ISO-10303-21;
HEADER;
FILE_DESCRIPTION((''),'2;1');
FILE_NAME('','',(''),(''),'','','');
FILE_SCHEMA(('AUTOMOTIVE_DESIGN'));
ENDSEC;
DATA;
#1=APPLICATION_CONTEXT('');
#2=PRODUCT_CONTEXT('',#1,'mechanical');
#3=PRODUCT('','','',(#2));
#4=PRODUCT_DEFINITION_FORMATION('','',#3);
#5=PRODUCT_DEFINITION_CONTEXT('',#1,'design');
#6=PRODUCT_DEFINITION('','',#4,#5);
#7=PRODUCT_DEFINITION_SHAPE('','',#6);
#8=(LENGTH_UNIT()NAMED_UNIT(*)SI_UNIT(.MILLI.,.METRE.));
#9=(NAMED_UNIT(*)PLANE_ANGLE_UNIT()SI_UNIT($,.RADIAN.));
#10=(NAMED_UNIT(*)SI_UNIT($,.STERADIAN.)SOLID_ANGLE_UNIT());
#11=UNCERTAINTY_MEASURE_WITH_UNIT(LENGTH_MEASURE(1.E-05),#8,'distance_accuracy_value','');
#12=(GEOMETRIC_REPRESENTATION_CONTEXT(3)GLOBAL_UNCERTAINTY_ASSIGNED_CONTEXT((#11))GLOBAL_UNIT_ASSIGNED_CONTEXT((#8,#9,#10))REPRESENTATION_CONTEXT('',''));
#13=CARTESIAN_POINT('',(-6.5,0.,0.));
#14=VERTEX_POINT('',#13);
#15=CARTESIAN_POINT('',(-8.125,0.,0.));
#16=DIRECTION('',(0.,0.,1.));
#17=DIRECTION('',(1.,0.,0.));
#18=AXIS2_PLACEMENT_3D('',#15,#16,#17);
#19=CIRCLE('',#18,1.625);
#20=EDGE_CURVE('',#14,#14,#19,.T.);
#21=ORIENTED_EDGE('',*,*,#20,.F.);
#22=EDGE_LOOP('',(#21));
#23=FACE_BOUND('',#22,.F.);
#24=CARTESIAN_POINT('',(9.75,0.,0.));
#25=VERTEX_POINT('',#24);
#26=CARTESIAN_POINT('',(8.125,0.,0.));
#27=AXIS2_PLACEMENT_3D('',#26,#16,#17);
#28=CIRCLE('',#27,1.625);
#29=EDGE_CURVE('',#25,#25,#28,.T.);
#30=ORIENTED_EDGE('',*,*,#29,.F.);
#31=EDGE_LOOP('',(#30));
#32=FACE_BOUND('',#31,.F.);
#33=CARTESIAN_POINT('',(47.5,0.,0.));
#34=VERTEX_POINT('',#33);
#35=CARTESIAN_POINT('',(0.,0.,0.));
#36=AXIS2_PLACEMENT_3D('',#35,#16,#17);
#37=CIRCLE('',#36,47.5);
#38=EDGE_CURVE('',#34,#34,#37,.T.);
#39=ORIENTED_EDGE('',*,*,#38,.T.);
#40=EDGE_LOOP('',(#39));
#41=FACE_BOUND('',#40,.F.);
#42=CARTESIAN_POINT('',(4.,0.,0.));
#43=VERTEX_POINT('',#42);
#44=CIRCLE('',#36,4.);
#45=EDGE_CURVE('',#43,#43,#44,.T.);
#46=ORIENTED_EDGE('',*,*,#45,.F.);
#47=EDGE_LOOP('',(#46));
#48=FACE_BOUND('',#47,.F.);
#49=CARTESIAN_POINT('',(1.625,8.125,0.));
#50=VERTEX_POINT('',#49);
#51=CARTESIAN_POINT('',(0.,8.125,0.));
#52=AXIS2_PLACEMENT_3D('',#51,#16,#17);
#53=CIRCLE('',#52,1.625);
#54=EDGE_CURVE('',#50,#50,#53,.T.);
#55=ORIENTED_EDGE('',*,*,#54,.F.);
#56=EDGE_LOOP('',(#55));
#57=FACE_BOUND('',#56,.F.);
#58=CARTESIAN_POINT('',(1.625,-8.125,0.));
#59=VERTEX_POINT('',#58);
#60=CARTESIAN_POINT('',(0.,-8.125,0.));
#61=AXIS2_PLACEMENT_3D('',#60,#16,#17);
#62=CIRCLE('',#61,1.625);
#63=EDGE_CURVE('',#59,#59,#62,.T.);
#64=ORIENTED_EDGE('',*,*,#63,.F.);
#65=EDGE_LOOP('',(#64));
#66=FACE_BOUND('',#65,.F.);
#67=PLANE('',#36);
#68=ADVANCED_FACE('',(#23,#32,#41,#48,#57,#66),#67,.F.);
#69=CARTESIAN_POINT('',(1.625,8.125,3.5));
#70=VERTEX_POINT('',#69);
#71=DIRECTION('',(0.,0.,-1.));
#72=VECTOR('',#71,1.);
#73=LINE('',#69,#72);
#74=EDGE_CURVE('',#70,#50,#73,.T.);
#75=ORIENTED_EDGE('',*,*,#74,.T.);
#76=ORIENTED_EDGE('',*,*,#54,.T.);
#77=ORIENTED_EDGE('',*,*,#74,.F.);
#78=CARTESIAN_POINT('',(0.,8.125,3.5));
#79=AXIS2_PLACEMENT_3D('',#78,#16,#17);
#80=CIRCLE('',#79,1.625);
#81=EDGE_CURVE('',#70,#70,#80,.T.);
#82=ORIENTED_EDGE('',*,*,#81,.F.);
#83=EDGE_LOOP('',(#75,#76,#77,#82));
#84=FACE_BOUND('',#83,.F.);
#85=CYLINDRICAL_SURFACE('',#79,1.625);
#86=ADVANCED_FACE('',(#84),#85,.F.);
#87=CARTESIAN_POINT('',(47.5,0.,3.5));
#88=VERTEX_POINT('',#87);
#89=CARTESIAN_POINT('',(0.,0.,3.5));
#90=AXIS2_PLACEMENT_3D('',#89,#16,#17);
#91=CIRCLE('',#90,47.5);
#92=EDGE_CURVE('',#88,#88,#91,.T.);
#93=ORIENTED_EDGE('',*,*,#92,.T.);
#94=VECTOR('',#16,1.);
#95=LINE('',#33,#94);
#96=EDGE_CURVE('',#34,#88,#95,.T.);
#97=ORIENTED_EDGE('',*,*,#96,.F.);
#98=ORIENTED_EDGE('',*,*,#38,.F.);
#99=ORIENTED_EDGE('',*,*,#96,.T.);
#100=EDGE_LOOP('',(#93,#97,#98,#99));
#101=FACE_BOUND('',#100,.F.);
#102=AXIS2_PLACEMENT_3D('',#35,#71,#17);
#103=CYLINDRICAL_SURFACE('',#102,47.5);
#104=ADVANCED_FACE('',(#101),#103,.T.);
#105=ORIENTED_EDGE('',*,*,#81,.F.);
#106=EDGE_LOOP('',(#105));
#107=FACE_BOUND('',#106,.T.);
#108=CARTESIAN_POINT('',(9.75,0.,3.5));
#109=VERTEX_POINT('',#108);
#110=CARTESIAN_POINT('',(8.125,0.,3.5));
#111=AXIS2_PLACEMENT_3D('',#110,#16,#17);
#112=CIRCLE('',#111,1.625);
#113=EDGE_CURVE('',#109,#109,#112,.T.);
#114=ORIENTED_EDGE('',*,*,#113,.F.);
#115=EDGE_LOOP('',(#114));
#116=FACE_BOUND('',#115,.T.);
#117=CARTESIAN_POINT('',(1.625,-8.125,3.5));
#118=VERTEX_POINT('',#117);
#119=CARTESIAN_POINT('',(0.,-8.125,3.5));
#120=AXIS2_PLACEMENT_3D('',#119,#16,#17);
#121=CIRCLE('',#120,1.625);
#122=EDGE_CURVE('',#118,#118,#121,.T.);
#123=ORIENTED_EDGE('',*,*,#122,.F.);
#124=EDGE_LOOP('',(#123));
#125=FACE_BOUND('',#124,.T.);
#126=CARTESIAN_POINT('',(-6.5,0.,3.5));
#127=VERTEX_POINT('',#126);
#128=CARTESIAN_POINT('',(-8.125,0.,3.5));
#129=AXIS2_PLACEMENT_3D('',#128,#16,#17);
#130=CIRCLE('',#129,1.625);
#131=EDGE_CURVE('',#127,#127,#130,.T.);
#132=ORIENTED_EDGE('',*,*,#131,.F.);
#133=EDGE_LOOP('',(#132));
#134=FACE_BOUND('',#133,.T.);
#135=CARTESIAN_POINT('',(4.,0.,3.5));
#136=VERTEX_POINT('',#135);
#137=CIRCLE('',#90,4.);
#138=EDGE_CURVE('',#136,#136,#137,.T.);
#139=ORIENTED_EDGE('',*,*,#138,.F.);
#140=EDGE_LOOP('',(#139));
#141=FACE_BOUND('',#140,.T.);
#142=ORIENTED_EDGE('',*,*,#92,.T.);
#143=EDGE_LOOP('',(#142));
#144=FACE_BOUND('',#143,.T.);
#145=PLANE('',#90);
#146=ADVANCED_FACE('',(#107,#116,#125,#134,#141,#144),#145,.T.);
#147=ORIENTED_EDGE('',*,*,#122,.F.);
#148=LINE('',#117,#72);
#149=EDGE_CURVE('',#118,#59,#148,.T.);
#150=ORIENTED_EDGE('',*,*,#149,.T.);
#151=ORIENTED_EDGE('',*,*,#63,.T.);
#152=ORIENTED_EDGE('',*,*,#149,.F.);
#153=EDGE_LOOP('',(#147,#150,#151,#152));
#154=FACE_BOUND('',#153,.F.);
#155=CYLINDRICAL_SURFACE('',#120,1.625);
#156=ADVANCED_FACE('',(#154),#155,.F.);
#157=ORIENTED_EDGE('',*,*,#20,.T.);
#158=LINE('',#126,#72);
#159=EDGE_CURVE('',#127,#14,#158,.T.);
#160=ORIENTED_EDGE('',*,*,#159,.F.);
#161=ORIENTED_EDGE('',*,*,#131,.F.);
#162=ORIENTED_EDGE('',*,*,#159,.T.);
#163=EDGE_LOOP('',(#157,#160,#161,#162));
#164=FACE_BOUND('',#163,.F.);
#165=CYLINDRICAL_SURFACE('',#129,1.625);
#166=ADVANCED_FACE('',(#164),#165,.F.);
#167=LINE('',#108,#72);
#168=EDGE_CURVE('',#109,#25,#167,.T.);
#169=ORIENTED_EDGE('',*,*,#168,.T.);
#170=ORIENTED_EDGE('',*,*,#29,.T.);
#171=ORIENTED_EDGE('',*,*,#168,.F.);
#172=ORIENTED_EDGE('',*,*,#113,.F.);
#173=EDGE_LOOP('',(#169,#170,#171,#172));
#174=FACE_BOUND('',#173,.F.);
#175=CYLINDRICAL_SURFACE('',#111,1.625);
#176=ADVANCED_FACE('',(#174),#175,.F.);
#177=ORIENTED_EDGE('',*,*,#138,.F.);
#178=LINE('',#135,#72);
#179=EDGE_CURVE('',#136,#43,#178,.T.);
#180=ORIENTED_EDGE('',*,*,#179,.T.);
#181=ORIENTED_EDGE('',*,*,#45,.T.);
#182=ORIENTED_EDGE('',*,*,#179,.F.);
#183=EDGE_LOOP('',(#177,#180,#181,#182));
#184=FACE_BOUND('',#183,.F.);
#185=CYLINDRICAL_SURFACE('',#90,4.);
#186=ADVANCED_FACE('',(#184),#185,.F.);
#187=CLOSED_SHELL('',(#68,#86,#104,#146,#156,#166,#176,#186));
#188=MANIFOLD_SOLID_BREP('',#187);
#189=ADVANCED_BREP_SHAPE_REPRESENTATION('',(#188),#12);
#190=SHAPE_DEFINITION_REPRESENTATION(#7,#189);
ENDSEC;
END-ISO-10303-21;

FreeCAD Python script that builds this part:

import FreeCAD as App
import Part
import Sketcher

V = App.Vector
Q = App.Units.Quantity

doc = App.newDocument("Part")
params = doc.addObject("Spreadsheet::Sheet", "Params")
for row, (alias, value) in enumerate([
    ("sketch1_diameter", "95 mm"),
    ("pad1_length", "3.5 mm"),
    ("sketch2_diameter", "8 mm"),
    ("pocket1_length", "3.5 mm"),
    ("sketch3_diameter", "3.25 mm"),
    ("pocket2_length", "3.5 mm"),
], start=1):
    params.set(f"A{row}", alias)
    params.set(f"B{row}", "=" + value)
    params.setAlias(f"B{row}", alias)

body = doc.addObject("PartDesign::Body", "Body")

sketch1 = body.newObject("Sketcher::SketchObject", "Sketch")
sketch1.AttachmentSupport = (doc.getObject("XY_Plane"), [""])
sketch1.MapMode = "FlatFace"
sketch1.addGeometry(Part.Circle(V(0, 0, 0), V(0, 0, 1), 48), False)
sketch1.addConstraint(Sketcher.Constraint("Coincident", 0, 3, -1, 1))
sketch1.addConstraint(Sketcher.Constraint("Diameter", 0, Q("95 mm")))
sketch1.setExpression("Constraints[1]", "Params.sketch1_diameter")
pad1 = body.newObject("PartDesign::Pad", "Pad")
pad1.Profile = sketch1
pad1.setExpression("Length", "Params.pad1_length")

sketch2 = body.newObject("Sketcher::SketchObject", "Sketch001")
sketch2.AttachmentSupport = (doc.getObject("XY_Plane"), [""])
sketch2.MapMode = "FlatFace"
sketch2.AttachmentOffset = App.Placement(V(0, 0, 3.5), App.Rotation())
sketch2.addGeometry(Part.Circle(V(0, 0, 0), V(0, 0, 1), 4), False)
sketch2.addConstraint(Sketcher.Constraint("Coincident", 0, 3, -1, 1))
sketch2.addConstraint(Sketcher.Constraint("Diameter", 0, Q("8 mm")))
sketch2.setExpression("Constraints[1]", "Params.sketch2_diameter")
pocket1 = body.newObject("PartDesign::Pocket", "Pocket")
pocket1.Profile = sketch2
pocket1.setExpression("Length", "Params.pocket1_length")

sketch3 = body.newObject("Sketcher::SketchObject", "Sketch002")
sketch3.AttachmentSupport = (doc.getObject("XY_Plane"), [""])
sketch3.MapMode = "FlatFace"
sketch3.AttachmentOffset = App.Placement(V(0, 0, 3.5), App.Rotation())
sketch3.addGeometry(Part.Circle(V(0, 8.1, 0), V(0, 0, 1), 1.6), False)
sketch3.addGeometry(Part.Circle(V(-8.1, 0, 0), V(0, 0, 1), 1.6), False)
sketch3.addGeometry(Part.Circle(V(0, -8.1, 0), V(0, 0, 1), 1.6), False)
sketch3.addGeometry(Part.Circle(V(8.1, 0, 0), V(0, 0, 1), 1.6), False)
sketch3.addConstraint(Sketcher.Constraint("Equal", 0, 1))
sketch3.addConstraint(Sketcher.Constraint("Equal", 1, 2))
sketch3.addConstraint(Sketcher.Constraint("Equal", 2, 3))
sketch3.addConstraint(Sketcher.Constraint("Symmetric", 0, 3, 2, 3, -1, 1))
sketch3.addConstraint(Sketcher.Constraint("Symmetric", 1, 3, 3, 3, -1, 1))
sketch3.addConstraint(Sketcher.Constraint("PointOnObject", 0, 3, -2))
sketch3.addConstraint(Sketcher.Constraint("PointOnObject", 1, 3, -1))
sketch3.addConstraint(Sketcher.Constraint("Diameter", 0, Q("3.25 mm")))
sketch3.addConstraint(Sketcher.Constraint("DistanceY", 2, 3, 0, 3, Q("16.25 mm")))
sketch3.addConstraint(Sketcher.Constraint("DistanceX", 1, 3, 3, 3, Q("16.25 mm")))
sketch3.setExpression("Constraints[7]", "Params.sketch3_diameter")
pocket2 = body.newObject("PartDesign::Pocket", "Pocket001")
pocket2.Profile = sketch3
pocket2.setExpression("Length", "Params.pocket2_length")

doc.recompute()
